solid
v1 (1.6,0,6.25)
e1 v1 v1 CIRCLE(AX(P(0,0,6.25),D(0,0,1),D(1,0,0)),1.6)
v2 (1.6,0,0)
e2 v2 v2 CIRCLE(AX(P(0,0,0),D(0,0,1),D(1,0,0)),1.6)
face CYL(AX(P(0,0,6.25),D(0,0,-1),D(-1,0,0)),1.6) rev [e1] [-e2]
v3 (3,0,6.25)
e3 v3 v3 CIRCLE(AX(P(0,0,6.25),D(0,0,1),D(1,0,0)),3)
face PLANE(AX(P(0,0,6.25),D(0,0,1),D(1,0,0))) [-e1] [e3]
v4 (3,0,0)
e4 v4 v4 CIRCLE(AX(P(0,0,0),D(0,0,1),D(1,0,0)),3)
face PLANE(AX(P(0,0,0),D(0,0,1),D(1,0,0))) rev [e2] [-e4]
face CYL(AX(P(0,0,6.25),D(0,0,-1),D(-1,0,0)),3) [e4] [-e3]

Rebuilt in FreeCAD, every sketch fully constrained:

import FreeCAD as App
import Part
import Sketcher

V = App.Vector
Q = App.Units.Quantity

doc = App.newDocument("Part")
body = doc.addObject("PartDesign::Body", "Body")

# Sketch on XY plane
sketch1 = body.newObject("Sketcher::SketchObject", "Sketch")
sketch1.AttachmentSupport = (doc.getObject("XY_Plane"), [""])
sketch1.MapMode = "FlatFace"
sketch1.addGeometry([
    Part.Circle(V(0, 0, 0), V(0, 0, 1), 3),
    Part.Circle(V(0, 0, 0), V(0, 0, 1), 1.6),
], False)
sketch1.addConstraint([
    Sketcher.Constraint("Coincident", 0, 3, -1, 1),
    Sketcher.Constraint("Coincident", 1, 3, -1, 1),
    Sketcher.Constraint("Diameter", 0, Q("6 mm")),
    Sketcher.Constraint("Diameter", 1, Q("3.2 mm")),
])
pad1 = body.newObject("PartDesign::Pad", "Pad")
pad1.Profile = sketch1
pad1.Length = 6.25

doc.recompute()
